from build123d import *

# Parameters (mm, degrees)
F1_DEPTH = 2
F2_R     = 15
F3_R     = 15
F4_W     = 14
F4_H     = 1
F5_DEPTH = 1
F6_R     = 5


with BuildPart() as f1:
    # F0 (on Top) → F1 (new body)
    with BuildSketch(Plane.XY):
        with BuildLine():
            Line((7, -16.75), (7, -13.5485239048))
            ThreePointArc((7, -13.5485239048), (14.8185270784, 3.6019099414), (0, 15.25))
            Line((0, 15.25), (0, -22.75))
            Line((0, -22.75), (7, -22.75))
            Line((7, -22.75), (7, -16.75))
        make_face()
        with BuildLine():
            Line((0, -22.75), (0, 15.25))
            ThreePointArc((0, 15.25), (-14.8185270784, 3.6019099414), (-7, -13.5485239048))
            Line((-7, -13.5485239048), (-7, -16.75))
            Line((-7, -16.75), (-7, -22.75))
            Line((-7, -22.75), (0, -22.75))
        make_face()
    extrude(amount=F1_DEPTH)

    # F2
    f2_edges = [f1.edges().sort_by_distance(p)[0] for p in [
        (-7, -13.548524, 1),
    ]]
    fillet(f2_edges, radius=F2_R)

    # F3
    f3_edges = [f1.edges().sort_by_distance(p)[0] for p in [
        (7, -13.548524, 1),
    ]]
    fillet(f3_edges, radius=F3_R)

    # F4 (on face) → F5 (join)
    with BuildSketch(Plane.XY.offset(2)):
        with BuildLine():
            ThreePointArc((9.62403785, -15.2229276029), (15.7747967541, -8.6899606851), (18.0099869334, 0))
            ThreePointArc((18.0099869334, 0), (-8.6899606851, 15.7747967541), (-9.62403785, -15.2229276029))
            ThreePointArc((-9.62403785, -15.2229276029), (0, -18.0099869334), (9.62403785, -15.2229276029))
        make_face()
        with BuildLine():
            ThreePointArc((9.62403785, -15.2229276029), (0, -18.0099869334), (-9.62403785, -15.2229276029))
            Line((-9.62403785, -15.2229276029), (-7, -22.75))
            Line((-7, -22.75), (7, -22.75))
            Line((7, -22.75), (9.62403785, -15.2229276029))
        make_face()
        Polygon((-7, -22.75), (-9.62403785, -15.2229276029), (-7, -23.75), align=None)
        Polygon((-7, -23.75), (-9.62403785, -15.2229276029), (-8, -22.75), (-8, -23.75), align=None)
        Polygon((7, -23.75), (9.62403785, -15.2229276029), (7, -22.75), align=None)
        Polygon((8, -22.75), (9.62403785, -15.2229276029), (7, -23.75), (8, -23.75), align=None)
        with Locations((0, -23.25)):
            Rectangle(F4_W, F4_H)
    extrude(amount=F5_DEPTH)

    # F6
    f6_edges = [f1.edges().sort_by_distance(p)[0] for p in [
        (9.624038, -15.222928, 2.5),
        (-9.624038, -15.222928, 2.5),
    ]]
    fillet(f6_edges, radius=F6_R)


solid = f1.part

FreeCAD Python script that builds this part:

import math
import FreeCAD as App
import Part
import Sketcher
Q = App.Units.Quantity


def edges_at(feature, points):
    """Names of the edges that pass closest to the given points."""
    edges = feature.Shape.Edges
    near = lambda p: min(range(len(edges)), key=lambda i: edges[i].distToShape(Part.Vertex(*p))[0])
    return sorted({f"Edge{near(p) + 1}" for p in points})

doc = App.newDocument("Part")
params = doc.addObject("Spreadsheet::Sheet", "Params")
for row, (alias, value) in enumerate([
    ("sketch1_width", "14 mm"),
    ("sketch1_radius", "15.25 mm"),
    ("pad1_length", "2 mm"),
    ("fillet_radius", "15 mm"),
    ("fillet2_radius", "15 mm"),
    ("sketch2_width", "16 mm"),
    ("sketch2_height", "1 mm"),
    ("pad2_length", "1 mm"),
    ("fillet3_radius", "5 mm"),
], start=1):
    params.set(f"A{row}", alias)
    params.set(f"B{row}", "=" + value)
    params.setAlias(f"B{row}", alias)

body = doc.addObject("PartDesign::Body", "Body")

sketch1 = body.newObject("Sketcher::SketchObject", "Sketch")
sketch1.AttachmentSupport = (doc.getObject("XY_Plane"), [""])
sketch1.MapMode = "FlatFace"
sketch1.addGeometry([
    Part.ArcOfCircle(Part.Circle(App.Vector(0, 0, 0), App.Vector(0, 0, 1), 15.25), math.radians(-62.676345), math.radians(90)),
    Part.ArcOfCircle(Part.Circle(App.Vector(0, 0, 0), App.Vector(0, 0, 1), 15.25), math.radians(90), math.radians(242.676345)),
    Part.LineSegment(App.Vector(-7, -13.548524, 0), App.Vector(-7, -22.75, 0)),
    Part.LineSegment(App.Vector(-7, -22.75, 0), App.Vector(7, -22.75, 0)),
    Part.LineSegment(App.Vector(7, -22.75, 0), App.Vector(7, -13.548524, 0)),
], False)
sketch1.addConstraint([
    Sketcher.Constraint("Tangent", 0, 2, 1, 1),
    Sketcher.Constraint("Coincident", 1, 2, 2, 1),
    Sketcher.Constraint("Coincident", 2, 2, 3, 1),
    Sketcher.Constraint("Coincident", 3, 2, 4, 1),
    Sketcher.Constraint("Coincident", 4, 2, 0, 1),
    Sketcher.Constraint("Vertical", 2),
    Sketcher.Constraint("Horizontal", 3),
    Sketcher.Constraint("Vertical", 4),
    Sketcher.Constraint("Coincident", 0, 3, -1, 1),
    Sketcher.Constraint("Equal", 0, 1),
    Sketcher.Constraint("PointOnObject", 0, 2, -2),
    Sketcher.Constraint("Horizontal", 1, 2, 4, 2),
    Sketcher.Constraint("DistanceX", 3, 1, 3, 2, Q("14 mm")),
    Sketcher.Constraint("Radius", 0, Q("15.25 mm")),
    Sketcher.Constraint("DistanceY", 2, 2, 0, 2, Q("38 mm")),
])
sketch1.setExpression("Constraints[12]", "Params.sketch1_width")
sketch1.setExpression("Constraints[13]", "Params.sketch1_radius")
pad1 = body.newObject("PartDesign::Pad", "Pad")
pad1.Profile = sketch1
pad1.setExpression("Length", "Params.pad1_length")
doc.recompute()

fillet = body.newObject("PartDesign::Fillet", "Fillet")
fillet.Base = (pad1, edges_at(pad1, [(-7, -13.549, 1)]))
fillet.setExpression("Radius", "Params.fillet_radius")
doc.recompute()

fillet2 = body.newObject("PartDesign::Fillet", "Fillet001")
fillet2.Base = (fillet, edges_at(fillet, [(7, -13.549, 1)]))
fillet2.setExpression("Radius", "Params.fillet2_radius")

sketch2 = body.newObject("Sketcher::SketchObject", "Sketch001")
sketch2.AttachmentSupport = (doc.getObject("XY_Plane"), [""])
sketch2.MapMode = "FlatFace"
sketch2.AttachmentOffset = App.Placement(App.Vector(0, 0, 2), App.Rotation())
sketch2.addGeometry([
    Part.ArcOfCircle(Part.Circle(App.Vector(0, 0, 0), App.Vector(0, 0, 1), 18.009987), math.radians(-57.698649), math.radians(0)),
    Part.ArcOfCircle(Part.Circle(App.Vector(0, 0, 0), App.Vector(0, 0, 1), 18.009987), math.radians(0), math.radians(237.698649)),
    Part.LineSegment(App.Vector(-9.624038, -15.222928, 0), App.Vector(-8, -22.75, 0)),
    Part.LineSegment(App.Vector(-8, -22.75, 0), App.Vector(-8, -23.75, 0)),
    Part.LineSegment(App.Vector(-8, -23.75, 0), App.Vector(8, -23.75, 0)),
    Part.LineSegment(App.Vector(8, -23.75, 0), App.Vector(8, -22.75, 0)),
    Part.LineSegment(App.Vector(8, -22.75, 0), App.Vector(9.624038, -15.222928, 0)),
], False)
sketch2.addConstraint([
    Sketcher.Constraint("Tangent", 0, 2, 1, 1),
    Sketcher.Constraint("Coincident", 1, 2, 2, 1),
    Sketcher.Constraint("Coincident", 2, 2, 3, 1),
    Sketcher.Constraint("Coincident", 3, 2, 4, 1),
    Sketcher.Constraint("Coincident", 4, 2, 5, 1),
    Sketcher.Constraint("Coincident", 5, 2, 6, 1),
    Sketcher.Constraint("Coincident", 6, 2, 0, 1),
    Sketcher.Constraint("Vertical", 3),
    Sketcher.Constraint("Horizontal", 4),
    Sketcher.Constraint("Vertical", 5),
    Sketcher.Constraint("Coincident", 0, 3, -1, 1),
    Sketcher.Constraint("Equal", 0, 1),
    Sketcher.Constraint("Symmetric", 2, 2, 5, 2, -2),
    Sketcher.Constraint("PointOnObject", 0, 2, -1),
    Sketcher.Constraint("Horizontal", 1, 2, 6, 2),
    Sketcher.Constraint("DistanceX", 4, 1, 4, 2, Q("16 mm")),
    Sketcher.Constraint("DistanceY", 3, 2, 3, 1, Q("1 mm")),
    Sketcher.Constraint("DistanceY", 2, 2, -1, 1, Q("22.75 mm")),
    Sketcher.Constraint("Radius", 0, Q("18.009987 mm")),
    Sketcher.Constraint("Distance", 2, Q("7.70028 mm")),
])
sketch2.setExpression("Constraints[15]", "Params.sketch2_width")
sketch2.setExpression("Constraints[16]", "Params.sketch2_height")
pad2 = body.newObject("PartDesign::Pad", "Pad001")
pad2.Profile = sketch2
pad2.setExpression("Length", "Params.pad2_length")
doc.recompute()

fillet3 = body.newObject("PartDesign::Fillet", "Fillet002")
fillet3.Base = (pad2, edges_at(pad2, [(9.624, -15.223, 2.5), (-9.624, -15.223, 2.5)]))
fillet3.setExpression("Radius", "Params.fillet3_radius")

doc.recompute()
